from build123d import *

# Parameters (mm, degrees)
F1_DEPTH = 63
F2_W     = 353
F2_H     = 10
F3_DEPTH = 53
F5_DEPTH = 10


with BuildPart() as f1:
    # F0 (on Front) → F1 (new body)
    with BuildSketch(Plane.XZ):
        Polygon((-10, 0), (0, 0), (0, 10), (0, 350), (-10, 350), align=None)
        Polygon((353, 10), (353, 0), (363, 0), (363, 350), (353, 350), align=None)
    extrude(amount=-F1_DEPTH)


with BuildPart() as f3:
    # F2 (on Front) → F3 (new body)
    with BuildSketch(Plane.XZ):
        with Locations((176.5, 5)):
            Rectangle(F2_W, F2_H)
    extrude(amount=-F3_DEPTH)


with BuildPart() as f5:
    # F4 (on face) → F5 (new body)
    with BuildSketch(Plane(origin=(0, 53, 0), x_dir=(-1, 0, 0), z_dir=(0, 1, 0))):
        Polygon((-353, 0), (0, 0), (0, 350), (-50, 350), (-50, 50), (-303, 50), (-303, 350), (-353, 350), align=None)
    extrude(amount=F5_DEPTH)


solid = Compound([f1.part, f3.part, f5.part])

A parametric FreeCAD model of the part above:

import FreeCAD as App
import Part
import Sketcher

V = App.Vector


def add_polygon(sketch, points):
    """Adds a closed chain of lines whose ends are joined by coincident constraints."""
    first, n = sketch.GeometryCount, len(points)
    for a, b in zip(points, points[1:] + points[:1]):
        sketch.addGeometry(Part.LineSegment(App.Vector(*a, 0), App.Vector(*b, 0)), False)
    for i in range(n):
        sketch.addConstraint(Sketcher.Constraint("Coincident", first + i, 2, first + (i + 1) % n, 1))

doc = App.newDocument("Part")
params = doc.addObject("Spreadsheet::Sheet", "Params")
for row, (alias, value) in enumerate([
    ("sketch1_width", "10 mm"),
    ("sketch1_height", "350 mm"),
    ("pad1_length", "63 mm"),
    ("sketch2_width", "353 mm"),
    ("sketch2_height", "10 mm"),
    ("pad2_length", "53 mm"),
    ("sketch3_width", "353 mm"),
    ("sketch3_width2", "50 mm"),
    ("sketch3_height", "350 mm"),
    ("sketch3_height2", "300 mm"),
    ("pad3_length", "10 mm"),
], start=1):
    params.set(f"A{row}", alias)
    params.set(f"B{row}", "=" + value)
    params.setAlias(f"B{row}", alias)

body = doc.addObject("PartDesign::Body", "Body")
body.AllowCompound = True

# Sketch on XZ plane
sketch1 = body.newObject("Sketcher::SketchObject", "Sketch")
sketch1.AttachmentSupport = (doc.getObject("XZ_Plane"), [""])
sketch1.MapMode = "FlatFace"
add_polygon(sketch1, [(-10, 0), (0, 0), (0, 350), (-10, 350)])  # lines 0-3
add_polygon(sketch1, [(353, 0), (363, 0), (363, 350), (353, 350)])  # lines 4-7
sketch1.addConstraint([
    Sketcher.Constraint("Horizontal", 0),
    Sketcher.Constraint("Vertical", 1),
    Sketcher.Constraint("Horizontal", 2),
    Sketcher.Constraint("Vertical", 3),
    Sketcher.Constraint("Horizontal", 4),
    Sketcher.Constraint("Vertical", 5),
    Sketcher.Constraint("Horizontal", 6),
    Sketcher.Constraint("Vertical", 7),
    Sketcher.Constraint("Coincident", 0, 2, -1, 1),
    Sketcher.Constraint("PointOnObject", 4, 2, -1),
    Sketcher.Constraint("Horizontal", 2, 2, 5, 2),
    Sketcher.Constraint("Equal", 2, 4),
    Sketcher.Constraint("DistanceX", 0, 1, 0, 2, 10.0),
    Sketcher.Constraint("DistanceY", 1, 1, 1, 2, 350.0),
    Sketcher.Constraint("DistanceX", -1, 1, 4, 2, 363.0),
])
sketch1.setExpression("Constraints[20]", "Params.sketch1_width")
sketch1.setExpression("Constraints[21]", "Params.sketch1_height")
pad1 = body.newObject("PartDesign::Pad", "Pad")
pad1.Profile = sketch1
pad1.setExpression("Length", "Params.pad1_length")
pad1.Reversed = True
body2 = doc.addObject("PartDesign::Body", "Body001")

# Sketch on XZ plane
sketch2 = body2.newObject("Sketcher::SketchObject", "Sketch001")
sketch2.AttachmentSupport = (doc.getObject("XZ_Plane001"), [""])
sketch2.MapMode = "FlatFace"
add_polygon(sketch2, [(0, 10), (0, 0), (353, 0), (353, 10)])  # lines 0-3
sketch2.addConstraint([
    Sketcher.Constraint("Vertical", 0),
    Sketcher.Constraint("Horizontal", 1),
    Sketcher.Constraint("Vertical", 2),
    Sketcher.Constraint("Horizontal", 3),
    Sketcher.Constraint("Coincident", 0, 2, -1, 1),
    Sketcher.Constraint("DistanceX", 1, 1, 1, 2, 353.0),
    Sketcher.Constraint("DistanceY", 0, 2, 0, 1, 10.0),
])
sketch2.setExpression("Constraints[9]", "Params.sketch2_width")
sketch2.setExpression("Constraints[10]", "Params.sketch2_height")
pad2 = body2.newObject("PartDesign::Pad", "Pad001")
pad2.Profile = sketch2
pad2.setExpression("Length", "Params.pad2_length")
pad2.Reversed = True
body3 = doc.addObject("PartDesign::Body", "Body002")

# Sketch on XZ plane
sketch3 = body3.newObject("Sketcher::SketchObject", "Sketch002")
sketch3.AttachmentSupport = (doc.getObject("XZ_Plane002"), [""])
sketch3.MapMode = "FlatFace"
sketch3.AttachmentOffset = App.Placement(V(0, 0, -53), App.Rotation())
add_polygon(sketch3, [(353, 0), (0, 0), (0, 350), (50, 350), (50, 50), (303, 50), (303, 350), (353, 350)])  # lines 0-7
sketch3.addConstraint([
    Sketcher.Constraint("Horizontal", 0),
    Sketcher.Constraint("Vertical", 1),
    Sketcher.Constraint("Horizontal", 2),
    Sketcher.Constraint("Vertical", 3),
    Sketcher.Constraint("Horizontal", 4),
    Sketcher.Constraint("Vertical", 5),
    Sketcher.Constraint("Horizontal", 6),
    Sketcher.Constraint("Vertical", 7),
    Sketcher.Constraint("Coincident", 0, 2, -1, 1),
    Sketcher.Constraint("Horizontal", 2, 2, 5, 2),
    Sketcher.Constraint("Equal", 2, 6),
    Sketcher.Constraint("DistanceX", 0, 2, 0, 1, 353.0),
    Sketcher.Constraint("DistanceX", 2, 1, 2, 2, 50.0),
    Sketcher.Constraint("DistanceY", 1, 1, 1, 2, 350.0),
    Sketcher.Constraint("DistanceY", 3, 2, 3, 1, 300.0),
])
sketch3.setExpression("Constraints[19]", "Params.sketch3_width")
sketch3.setExpression("Constraints[20]", "Params.sketch3_width2")
sketch3.setExpression("Constraints[21]", "Params.sketch3_height")
sketch3.setExpression("Constraints[22]", "Params.sketch3_height2")
pad3 = body3.newObject("PartDesign::Pad", "Pad002")
pad3.Profile = sketch3
pad3.setExpression("Length", "Params.pad3_length")
pad3.Reversed = True

doc.recompute()
